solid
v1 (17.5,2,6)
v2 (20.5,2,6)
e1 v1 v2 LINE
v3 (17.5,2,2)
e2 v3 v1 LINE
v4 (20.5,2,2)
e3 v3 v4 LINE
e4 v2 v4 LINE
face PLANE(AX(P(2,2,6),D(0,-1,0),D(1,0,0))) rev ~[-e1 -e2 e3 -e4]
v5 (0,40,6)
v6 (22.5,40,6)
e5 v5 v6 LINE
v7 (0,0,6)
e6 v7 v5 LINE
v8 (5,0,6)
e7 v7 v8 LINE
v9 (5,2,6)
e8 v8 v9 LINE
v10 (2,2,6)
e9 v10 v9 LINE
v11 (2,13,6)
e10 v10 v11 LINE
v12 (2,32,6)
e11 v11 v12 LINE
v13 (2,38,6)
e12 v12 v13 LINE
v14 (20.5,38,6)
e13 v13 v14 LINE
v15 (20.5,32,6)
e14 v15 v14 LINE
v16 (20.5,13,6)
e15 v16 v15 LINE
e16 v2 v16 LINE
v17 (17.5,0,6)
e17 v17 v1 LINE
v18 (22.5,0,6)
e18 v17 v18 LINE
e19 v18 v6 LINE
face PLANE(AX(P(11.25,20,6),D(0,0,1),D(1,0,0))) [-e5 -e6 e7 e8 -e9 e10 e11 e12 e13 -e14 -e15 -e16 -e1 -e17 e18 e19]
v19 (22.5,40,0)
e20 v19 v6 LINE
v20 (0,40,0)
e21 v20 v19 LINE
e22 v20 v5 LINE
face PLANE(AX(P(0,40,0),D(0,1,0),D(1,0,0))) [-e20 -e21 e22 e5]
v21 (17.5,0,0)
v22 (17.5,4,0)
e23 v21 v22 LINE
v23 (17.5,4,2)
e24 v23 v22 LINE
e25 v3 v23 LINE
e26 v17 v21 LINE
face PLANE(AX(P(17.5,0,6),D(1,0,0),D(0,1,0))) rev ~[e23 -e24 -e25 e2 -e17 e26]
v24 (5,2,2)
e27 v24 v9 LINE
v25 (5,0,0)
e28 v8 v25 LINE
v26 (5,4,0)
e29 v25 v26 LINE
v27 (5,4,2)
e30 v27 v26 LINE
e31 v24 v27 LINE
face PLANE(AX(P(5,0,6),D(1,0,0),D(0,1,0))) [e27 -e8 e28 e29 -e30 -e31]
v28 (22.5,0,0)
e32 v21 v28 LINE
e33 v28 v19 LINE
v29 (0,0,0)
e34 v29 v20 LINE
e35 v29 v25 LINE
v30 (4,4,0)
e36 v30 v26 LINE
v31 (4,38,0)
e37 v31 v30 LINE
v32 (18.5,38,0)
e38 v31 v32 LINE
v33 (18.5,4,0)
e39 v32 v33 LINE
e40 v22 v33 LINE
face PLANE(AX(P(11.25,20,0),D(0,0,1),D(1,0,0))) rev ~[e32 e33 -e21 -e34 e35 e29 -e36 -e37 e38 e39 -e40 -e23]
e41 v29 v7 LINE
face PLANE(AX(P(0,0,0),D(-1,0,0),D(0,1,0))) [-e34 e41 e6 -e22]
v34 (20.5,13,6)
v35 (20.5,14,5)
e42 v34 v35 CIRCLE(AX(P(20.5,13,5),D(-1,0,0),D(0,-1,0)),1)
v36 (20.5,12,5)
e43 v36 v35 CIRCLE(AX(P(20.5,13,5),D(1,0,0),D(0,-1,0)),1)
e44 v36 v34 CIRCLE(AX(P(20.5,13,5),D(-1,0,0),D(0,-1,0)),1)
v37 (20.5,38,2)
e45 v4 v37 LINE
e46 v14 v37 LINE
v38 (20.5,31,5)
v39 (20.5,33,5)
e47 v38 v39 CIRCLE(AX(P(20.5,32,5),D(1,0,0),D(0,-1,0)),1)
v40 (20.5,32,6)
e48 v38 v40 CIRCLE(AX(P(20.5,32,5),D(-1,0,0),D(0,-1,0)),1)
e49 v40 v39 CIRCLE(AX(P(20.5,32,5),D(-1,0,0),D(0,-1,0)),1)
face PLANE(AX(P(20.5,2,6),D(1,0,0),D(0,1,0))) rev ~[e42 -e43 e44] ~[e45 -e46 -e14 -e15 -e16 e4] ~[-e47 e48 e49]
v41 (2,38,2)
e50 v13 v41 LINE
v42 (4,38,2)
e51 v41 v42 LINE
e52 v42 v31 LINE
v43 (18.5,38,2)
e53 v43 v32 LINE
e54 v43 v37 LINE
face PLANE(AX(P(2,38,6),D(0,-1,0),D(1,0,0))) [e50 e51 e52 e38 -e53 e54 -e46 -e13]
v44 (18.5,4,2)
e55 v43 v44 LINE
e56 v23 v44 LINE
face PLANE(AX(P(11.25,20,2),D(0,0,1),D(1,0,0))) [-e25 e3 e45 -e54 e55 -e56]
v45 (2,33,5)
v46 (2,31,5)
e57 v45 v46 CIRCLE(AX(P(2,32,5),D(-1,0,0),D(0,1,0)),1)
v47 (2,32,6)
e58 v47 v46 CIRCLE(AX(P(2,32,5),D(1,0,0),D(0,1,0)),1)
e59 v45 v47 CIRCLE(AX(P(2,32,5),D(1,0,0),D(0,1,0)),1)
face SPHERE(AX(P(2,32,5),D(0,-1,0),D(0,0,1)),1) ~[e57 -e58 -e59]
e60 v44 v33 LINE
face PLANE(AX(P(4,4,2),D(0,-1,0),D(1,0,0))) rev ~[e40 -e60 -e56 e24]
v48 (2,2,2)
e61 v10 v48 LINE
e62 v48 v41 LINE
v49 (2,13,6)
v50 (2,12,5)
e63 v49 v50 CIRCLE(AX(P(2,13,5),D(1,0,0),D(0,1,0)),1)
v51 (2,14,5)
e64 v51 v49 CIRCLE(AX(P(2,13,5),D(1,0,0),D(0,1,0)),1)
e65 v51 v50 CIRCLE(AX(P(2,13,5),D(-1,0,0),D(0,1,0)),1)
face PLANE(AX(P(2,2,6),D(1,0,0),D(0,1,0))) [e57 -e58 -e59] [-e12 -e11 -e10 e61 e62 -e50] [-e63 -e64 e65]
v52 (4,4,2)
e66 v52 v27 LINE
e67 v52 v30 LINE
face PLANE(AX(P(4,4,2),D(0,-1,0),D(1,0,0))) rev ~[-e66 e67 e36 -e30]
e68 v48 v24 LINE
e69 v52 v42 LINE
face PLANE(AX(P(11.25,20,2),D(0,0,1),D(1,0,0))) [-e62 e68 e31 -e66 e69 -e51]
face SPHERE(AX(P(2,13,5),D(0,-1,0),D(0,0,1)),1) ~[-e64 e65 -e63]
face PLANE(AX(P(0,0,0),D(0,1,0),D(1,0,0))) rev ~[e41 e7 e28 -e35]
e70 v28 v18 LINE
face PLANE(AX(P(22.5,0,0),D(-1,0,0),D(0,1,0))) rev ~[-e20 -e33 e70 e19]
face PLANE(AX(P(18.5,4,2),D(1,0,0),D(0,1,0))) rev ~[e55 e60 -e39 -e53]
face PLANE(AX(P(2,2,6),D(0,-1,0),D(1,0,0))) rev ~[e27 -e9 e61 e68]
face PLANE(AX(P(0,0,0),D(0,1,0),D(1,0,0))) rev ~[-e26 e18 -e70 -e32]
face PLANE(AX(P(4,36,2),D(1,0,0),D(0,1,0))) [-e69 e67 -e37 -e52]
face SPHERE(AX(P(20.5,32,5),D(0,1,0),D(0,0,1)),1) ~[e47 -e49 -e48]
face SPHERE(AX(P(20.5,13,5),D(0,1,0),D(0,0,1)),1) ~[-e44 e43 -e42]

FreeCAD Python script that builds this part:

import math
import FreeCAD as App
import Part
import Sketcher

V = App.Vector
Q = App.Units.Quantity


def add_polygon(sketch, points):
    """Adds a closed chain of lines whose ends are joined by coincident constraints."""
    first, n = sketch.GeometryCount, len(points)
    for a, b in zip(points, points[1:] + points[:1]):
        sketch.addGeometry(Part.LineSegment(App.Vector(*a, 0), App.Vector(*b, 0)), False)
    for i in range(n):
        sketch.addConstraint(Sketcher.Constraint("Coincident", first + i, 2, first + (i + 1) % n, 1))

doc = App.newDocument("Part")
body = doc.addObject("PartDesign::Body", "Body")

# Sketch on XY plane
sketch1 = body.newObject("Sketcher::SketchObject", "Sketch")
sketch1.AttachmentSupport = (doc.getObject("XY_Plane"), [""])
sketch1.MapMode = "FlatFace"
add_polygon(sketch1, [(0, 40), (0, 0), (22, 0), (22, 40)])  # lines 0-3
sketch1.addConstraint(Sketcher.Constraint("Vertical", 0))
sketch1.addConstraint(Sketcher.Constraint("Horizontal", 1))
sketch1.addConstraint(Sketcher.Constraint("Vertical", 2))
sketch1.addConstraint(Sketcher.Constraint("Horizontal", 3))
sketch1.addConstraint(Sketcher.Constraint("Coincident", 0, 2, -1, 1))
sketch1.addConstraint(Sketcher.Constraint("DistanceY", 0, 2, 0, 1, Q("40 mm")))
sketch1.addConstraint(Sketcher.Constraint("DistanceX", 1, 1, 1, 2, Q("22.5 mm")))
pad1 = body.newObject("PartDesign::Pad", "Pad")
pad1.Profile = sketch1
pad1.Length = 6

# Sketch on XY plane
sketch2 = body.newObject("Sketcher::SketchObject", "Sketch001")
sketch2.AttachmentSupport = (doc.getObject("XY_Plane"), [""])
sketch2.MapMode = "FlatFace"
sketch2.AttachmentOffset = App.Placement(V(0, 0, 6), App.Rotation())
add_polygon(sketch2, [(2, 38), (2, 2), (20, 2), (20, 38)])  # lines 0-3
sketch2.addConstraint(Sketcher.Constraint("Vertical", 0))
sketch2.addConstraint(Sketcher.Constraint("Horizontal", 1))
sketch2.addConstraint(Sketcher.Constraint("Vertical", 2))
sketch2.addConstraint(Sketcher.Constraint("Horizontal", 3))
sketch2.addConstraint(Sketcher.Constraint("DistanceY", 0, 2, 0, 1, Q("36 mm")))
sketch2.addConstraint(Sketcher.Constraint("DistanceX", 1, 1, 1, 2, Q("18.5 mm")))
sketch2.addConstraint(Sketcher.Constraint("DistanceX", -1, 1, 0, 2, Q("2 mm")))
sketch2.addConstraint(Sketcher.Constraint("DistanceY", -1, 1, 0, 2, Q("2 mm")))
pocket1 = body.newObject("PartDesign::Pocket", "Pocket")
pocket1.Profile = sketch2
pocket1.Length = 4

# Sketch on XY plane
sketch3 = body.newObject("Sketcher::SketchObject", "Sketch002")
sketch3.AttachmentSupport = (doc.getObject("XY_Plane"), [""])
sketch3.MapMode = "FlatFace"
sketch3.AttachmentOffset = App.Placement(V(0, 0, 2), App.Rotation())
add_polygon(sketch3, [(4, 36), (4, 4), (18, 4), (18, 36)])  # lines 0-3
sketch3.addConstraint(Sketcher.Constraint("Vertical", 0))
sketch3.addConstraint(Sketcher.Constraint("Horizontal", 1))
sketch3.addConstraint(Sketcher.Constraint("Vertical", 2))
sketch3.addConstraint(Sketcher.Constraint("Horizontal", 3))
sketch3.addConstraint(Sketcher.Constraint("DistanceY", 0, 2, 0, 1, Q("32 mm")))
sketch3.addConstraint(Sketcher.Constraint("DistanceX", 1, 1, 1, 2, Q("14.5 mm")))
sketch3.addConstraint(Sketcher.Constraint("DistanceX", -1, 1, 0, 2, Q("4 mm")))
sketch3.addConstraint(Sketcher.Constraint("DistanceY", -1, 1, 0, 2, Q("4 mm")))
pocket2 = body.newObject("PartDesign::Pocket", "Pocket001")
pocket2.Profile = sketch3
pocket2.Type = "ThroughAll"

# Sketch on XY plane
sketch4 = body.newObject("Sketcher::SketchObject", "Sketch003")
sketch4.AttachmentSupport = (doc.getObject("XY_Plane"), [""])
sketch4.MapMode = "FlatFace"
sketch4.AttachmentOffset = App.Placement(V(0, 0, 6), App.Rotation())
add_polygon(sketch4, [(5, 4), (5, 0), (17.5, 0), (17.5, 4)])  # lines 0-3
sketch4.addConstraint(Sketcher.Constraint("Vertical", 0))
sketch4.addConstraint(Sketcher.Constraint("Horizontal", 1))
sketch4.addConstraint(Sketcher.Constraint("Vertical", 2))
sketch4.addConstraint(Sketcher.Constraint("Horizontal", 3))
sketch4.addConstraint(Sketcher.Constraint("PointOnObject", 0, 2, -1))
sketch4.addConstraint(Sketcher.Constraint("DistanceY", 0, 2, 0, 1, Q("4 mm")))
sketch4.addConstraint(Sketcher.Constraint("DistanceX", 1, 1, 1, 2, Q("12.5 mm")))
sketch4.addConstraint(Sketcher.Constraint("DistanceX", -1, 1, 0, 2, Q("5 mm")))
pocket3 = body.newObject("PartDesign::Pocket", "Pocket002")
pocket3.Profile = sketch4
pocket3.Type = "ThroughAll"

# Sketch on YZ plane
sketch5 = body.newObject("Sketcher::SketchObject", "Sketch004")
sketch5.AttachmentSupport = (doc.getObject("YZ_Plane"), [""])
sketch5.MapMode = "FlatFace"
sketch5.AttachmentOffset = App.Placement(V(0, 0, 2), App.Rotation())
sketch5.addGeometry(Part.ArcOfCircle(Part.Circle(V(13, 5, 0), V(0, 0, 1), 1), math.radians(0), math.radians(180)), False)
sketch5.addGeometry(Part.LineSegment(V(12, 5, 0), V(14, 5, 0)), False)
sketch5.addGeometry(Part.ArcOfCircle(Part.Circle(V(32, 5, 0), V(0, 0, 1), 1), math.radians(0), math.radians(180)), False)
sketch5.addGeometry(Part.LineSegment(V(31, 5, 0), V(33, 5, 0)), False)
sketch5.addGeometry(Part.LineSegment(V(33, 5, 0), V(12, 5, 0)), True)  # axis
sketch5.addConstraint(Sketcher.Constraint("Coincident", 0, 1, 1, 2))
sketch5.addConstraint(Sketcher.Constraint("Coincident", 1, 1, 0, 2))
sketch5.addConstraint(Sketcher.Constraint("Coincident", 2, 1, 3, 2))
sketch5.addConstraint(Sketcher.Constraint("Coincident", 3, 1, 2, 2))
sketch5.addConstraint(Sketcher.Constraint("Horizontal", 1))
sketch5.addConstraint(Sketcher.Constraint("Horizontal", 3))
sketch5.addConstraint(Sketcher.Constraint("Horizontal", 4))
sketch5.addConstraint(Sketcher.Constraint("Coincident", 4, 1, 2, 1))
sketch5.addConstraint(Sketcher.Constraint("Coincident", 4, 2, 1, 1))
sketch5.addConstraint(Sketcher.Constraint("Equal", 0, 2))
sketch5.addConstraint(Sketcher.Constraint("Horizontal", 0, 3, 2, 3))
sketch5.addConstraint(Sketcher.Constraint("Horizontal", 2, 3, 0, 1))
sketch5.addConstraint(Sketcher.Constraint("Radius", 0, Q("1 mm")))
sketch5.addConstraint(Sketcher.Constraint("DistanceX", 4, 2, 4, 1, Q("21 mm")))
sketch5.addConstraint(Sketcher.Constraint("DistanceX", -1, 1, 0, 3, Q("13 mm")))
sketch5.addConstraint(Sketcher.Constraint("DistanceY", -1, 1, 0, 3, Q("5 mm")))
revolution = body.newObject("PartDesign::Revolution", "Revolution")
revolution.Profile = sketch5
revolution.ReferenceAxis = (sketch5, ["Axis0"])
revolution.Angle = 180
revolution.Reversed = True

# Sketch on YZ plane
sketch6 = body.newObject("Sketcher::SketchObject", "Sketch005")
sketch6.AttachmentSupport = (doc.getObject("YZ_Plane"), [""])
sketch6.MapMode = "FlatFace"
sketch6.AttachmentOffset = App.Placement(V(0, 0, 20.5), App.Rotation())
sketch6.addGeometry(Part.ArcOfCircle(Part.Circle(V(32, 5, 0), V(0, 0, 1), 1), math.radians(0), math.radians(180)), False)
sketch6.addGeometry(Part.LineSegment(V(33, 5, 0), V(31, 5, 0)), False)
sketch6.addGeometry(Part.ArcOfCircle(Part.Circle(V(13, 5, 0), V(0, 0, 1), 1), math.radians(0), math.radians(180)), False)
sketch6.addGeometry(Part.LineSegment(V(14, 5, 0), V(12, 5, 0)), False)
sketch6.addGeometry(Part.LineSegment(V(33, 5, 0), V(12, 5, 0)), True)  # axis
sketch6.addConstraint(Sketcher.Constraint("Coincident", 0, 1, 1, 1))
sketch6.addConstraint(Sketcher.Constraint("Coincident", 1, 2, 0, 2))
sketch6.addConstraint(Sketcher.Constraint("Coincident", 2, 1, 3, 1))
sketch6.addConstraint(Sketcher.Constraint("Coincident", 3, 2, 2, 2))
sketch6.addConstraint(Sketcher.Constraint("Horizontal", 1))
sketch6.addConstraint(Sketcher.Constraint("Horizontal", 3))
sketch6.addConstraint(Sketcher.Constraint("Horizontal", 4))
sketch6.addConstraint(Sketcher.Constraint("Coincident", 4, 1, 0, 1))
sketch6.addConstraint(Sketcher.Constraint("Coincident", 4, 2, 3, 2))
sketch6.addConstraint(Sketcher.Constraint("Equal", 0, 2))
sketch6.addConstraint(Sketcher.Constraint("Horizontal", 0, 3, 2, 3))
sketch6.addConstraint(Sketcher.Constraint("Horizontal", 2, 3, 0, 1))
sketch6.addConstraint(Sketcher.Constraint("Radius", 0, Q("1 mm")))
sketch6.addConstraint(Sketcher.Constraint("DistanceX", 4, 2, 4, 1, Q("21 mm")))
sketch6.addConstraint(Sketcher.Constraint("DistanceX", -1, 1, 0, 3, Q("32 mm")))
sketch6.addConstraint(Sketcher.Constraint("DistanceY", -1, 1, 0, 3, Q("5 mm")))
revolution2 = body.newObject("PartDesign::Revolution", "Revolution001")
revolution2.Profile = sketch6
revolution2.ReferenceAxis = (sketch6, ["Axis0"])
revolution2.Angle = 180

# Sketch on XY plane
sketch7 = body.newObject("Sketcher::SketchObject", "Sketch006")
sketch7.AttachmentSupport = (doc.getObject("XY_Plane"), [""])
sketch7.MapMode = "FlatFace"
sketch7.AttachmentOffset = App.Placement(V(0, 0, 2), App.Rotation())
add_polygon(sketch7, [(4, 38), (4, 36), (18.5, 36), (18.5, 38)])  # lines 0-3
sketch7.addConstraint(Sketcher.Constraint("Vertical", 0))
sketch7.addConstraint(Sketcher.Constraint("Horizontal", 1))
sketch7.addConstraint(Sketcher.Constraint("Vertical", 2))
sketch7.addConstraint(Sketcher.Constraint("Horizontal", 3))
sketch7.addConstraint(Sketcher.Constraint("DistanceY", 0, 2, 0, 1, Q("2 mm")))
sketch7.addConstraint(Sketcher.Constraint("DistanceX", 1, 1, 1, 2, Q("14.5 mm")))
sketch7.addConstraint(Sketcher.Constraint("DistanceX", -1, 1, 0, 2, Q("4 mm")))
sketch7.addConstraint(Sketcher.Constraint("DistanceY", -1, 1, 0, 2, Q("36 mm")))
pocket4 = body.newObject("PartDesign::Pocket", "Pocket003")
pocket4.Profile = sketch7
pocket4.Type = "ThroughAll"

doc.recompute()
